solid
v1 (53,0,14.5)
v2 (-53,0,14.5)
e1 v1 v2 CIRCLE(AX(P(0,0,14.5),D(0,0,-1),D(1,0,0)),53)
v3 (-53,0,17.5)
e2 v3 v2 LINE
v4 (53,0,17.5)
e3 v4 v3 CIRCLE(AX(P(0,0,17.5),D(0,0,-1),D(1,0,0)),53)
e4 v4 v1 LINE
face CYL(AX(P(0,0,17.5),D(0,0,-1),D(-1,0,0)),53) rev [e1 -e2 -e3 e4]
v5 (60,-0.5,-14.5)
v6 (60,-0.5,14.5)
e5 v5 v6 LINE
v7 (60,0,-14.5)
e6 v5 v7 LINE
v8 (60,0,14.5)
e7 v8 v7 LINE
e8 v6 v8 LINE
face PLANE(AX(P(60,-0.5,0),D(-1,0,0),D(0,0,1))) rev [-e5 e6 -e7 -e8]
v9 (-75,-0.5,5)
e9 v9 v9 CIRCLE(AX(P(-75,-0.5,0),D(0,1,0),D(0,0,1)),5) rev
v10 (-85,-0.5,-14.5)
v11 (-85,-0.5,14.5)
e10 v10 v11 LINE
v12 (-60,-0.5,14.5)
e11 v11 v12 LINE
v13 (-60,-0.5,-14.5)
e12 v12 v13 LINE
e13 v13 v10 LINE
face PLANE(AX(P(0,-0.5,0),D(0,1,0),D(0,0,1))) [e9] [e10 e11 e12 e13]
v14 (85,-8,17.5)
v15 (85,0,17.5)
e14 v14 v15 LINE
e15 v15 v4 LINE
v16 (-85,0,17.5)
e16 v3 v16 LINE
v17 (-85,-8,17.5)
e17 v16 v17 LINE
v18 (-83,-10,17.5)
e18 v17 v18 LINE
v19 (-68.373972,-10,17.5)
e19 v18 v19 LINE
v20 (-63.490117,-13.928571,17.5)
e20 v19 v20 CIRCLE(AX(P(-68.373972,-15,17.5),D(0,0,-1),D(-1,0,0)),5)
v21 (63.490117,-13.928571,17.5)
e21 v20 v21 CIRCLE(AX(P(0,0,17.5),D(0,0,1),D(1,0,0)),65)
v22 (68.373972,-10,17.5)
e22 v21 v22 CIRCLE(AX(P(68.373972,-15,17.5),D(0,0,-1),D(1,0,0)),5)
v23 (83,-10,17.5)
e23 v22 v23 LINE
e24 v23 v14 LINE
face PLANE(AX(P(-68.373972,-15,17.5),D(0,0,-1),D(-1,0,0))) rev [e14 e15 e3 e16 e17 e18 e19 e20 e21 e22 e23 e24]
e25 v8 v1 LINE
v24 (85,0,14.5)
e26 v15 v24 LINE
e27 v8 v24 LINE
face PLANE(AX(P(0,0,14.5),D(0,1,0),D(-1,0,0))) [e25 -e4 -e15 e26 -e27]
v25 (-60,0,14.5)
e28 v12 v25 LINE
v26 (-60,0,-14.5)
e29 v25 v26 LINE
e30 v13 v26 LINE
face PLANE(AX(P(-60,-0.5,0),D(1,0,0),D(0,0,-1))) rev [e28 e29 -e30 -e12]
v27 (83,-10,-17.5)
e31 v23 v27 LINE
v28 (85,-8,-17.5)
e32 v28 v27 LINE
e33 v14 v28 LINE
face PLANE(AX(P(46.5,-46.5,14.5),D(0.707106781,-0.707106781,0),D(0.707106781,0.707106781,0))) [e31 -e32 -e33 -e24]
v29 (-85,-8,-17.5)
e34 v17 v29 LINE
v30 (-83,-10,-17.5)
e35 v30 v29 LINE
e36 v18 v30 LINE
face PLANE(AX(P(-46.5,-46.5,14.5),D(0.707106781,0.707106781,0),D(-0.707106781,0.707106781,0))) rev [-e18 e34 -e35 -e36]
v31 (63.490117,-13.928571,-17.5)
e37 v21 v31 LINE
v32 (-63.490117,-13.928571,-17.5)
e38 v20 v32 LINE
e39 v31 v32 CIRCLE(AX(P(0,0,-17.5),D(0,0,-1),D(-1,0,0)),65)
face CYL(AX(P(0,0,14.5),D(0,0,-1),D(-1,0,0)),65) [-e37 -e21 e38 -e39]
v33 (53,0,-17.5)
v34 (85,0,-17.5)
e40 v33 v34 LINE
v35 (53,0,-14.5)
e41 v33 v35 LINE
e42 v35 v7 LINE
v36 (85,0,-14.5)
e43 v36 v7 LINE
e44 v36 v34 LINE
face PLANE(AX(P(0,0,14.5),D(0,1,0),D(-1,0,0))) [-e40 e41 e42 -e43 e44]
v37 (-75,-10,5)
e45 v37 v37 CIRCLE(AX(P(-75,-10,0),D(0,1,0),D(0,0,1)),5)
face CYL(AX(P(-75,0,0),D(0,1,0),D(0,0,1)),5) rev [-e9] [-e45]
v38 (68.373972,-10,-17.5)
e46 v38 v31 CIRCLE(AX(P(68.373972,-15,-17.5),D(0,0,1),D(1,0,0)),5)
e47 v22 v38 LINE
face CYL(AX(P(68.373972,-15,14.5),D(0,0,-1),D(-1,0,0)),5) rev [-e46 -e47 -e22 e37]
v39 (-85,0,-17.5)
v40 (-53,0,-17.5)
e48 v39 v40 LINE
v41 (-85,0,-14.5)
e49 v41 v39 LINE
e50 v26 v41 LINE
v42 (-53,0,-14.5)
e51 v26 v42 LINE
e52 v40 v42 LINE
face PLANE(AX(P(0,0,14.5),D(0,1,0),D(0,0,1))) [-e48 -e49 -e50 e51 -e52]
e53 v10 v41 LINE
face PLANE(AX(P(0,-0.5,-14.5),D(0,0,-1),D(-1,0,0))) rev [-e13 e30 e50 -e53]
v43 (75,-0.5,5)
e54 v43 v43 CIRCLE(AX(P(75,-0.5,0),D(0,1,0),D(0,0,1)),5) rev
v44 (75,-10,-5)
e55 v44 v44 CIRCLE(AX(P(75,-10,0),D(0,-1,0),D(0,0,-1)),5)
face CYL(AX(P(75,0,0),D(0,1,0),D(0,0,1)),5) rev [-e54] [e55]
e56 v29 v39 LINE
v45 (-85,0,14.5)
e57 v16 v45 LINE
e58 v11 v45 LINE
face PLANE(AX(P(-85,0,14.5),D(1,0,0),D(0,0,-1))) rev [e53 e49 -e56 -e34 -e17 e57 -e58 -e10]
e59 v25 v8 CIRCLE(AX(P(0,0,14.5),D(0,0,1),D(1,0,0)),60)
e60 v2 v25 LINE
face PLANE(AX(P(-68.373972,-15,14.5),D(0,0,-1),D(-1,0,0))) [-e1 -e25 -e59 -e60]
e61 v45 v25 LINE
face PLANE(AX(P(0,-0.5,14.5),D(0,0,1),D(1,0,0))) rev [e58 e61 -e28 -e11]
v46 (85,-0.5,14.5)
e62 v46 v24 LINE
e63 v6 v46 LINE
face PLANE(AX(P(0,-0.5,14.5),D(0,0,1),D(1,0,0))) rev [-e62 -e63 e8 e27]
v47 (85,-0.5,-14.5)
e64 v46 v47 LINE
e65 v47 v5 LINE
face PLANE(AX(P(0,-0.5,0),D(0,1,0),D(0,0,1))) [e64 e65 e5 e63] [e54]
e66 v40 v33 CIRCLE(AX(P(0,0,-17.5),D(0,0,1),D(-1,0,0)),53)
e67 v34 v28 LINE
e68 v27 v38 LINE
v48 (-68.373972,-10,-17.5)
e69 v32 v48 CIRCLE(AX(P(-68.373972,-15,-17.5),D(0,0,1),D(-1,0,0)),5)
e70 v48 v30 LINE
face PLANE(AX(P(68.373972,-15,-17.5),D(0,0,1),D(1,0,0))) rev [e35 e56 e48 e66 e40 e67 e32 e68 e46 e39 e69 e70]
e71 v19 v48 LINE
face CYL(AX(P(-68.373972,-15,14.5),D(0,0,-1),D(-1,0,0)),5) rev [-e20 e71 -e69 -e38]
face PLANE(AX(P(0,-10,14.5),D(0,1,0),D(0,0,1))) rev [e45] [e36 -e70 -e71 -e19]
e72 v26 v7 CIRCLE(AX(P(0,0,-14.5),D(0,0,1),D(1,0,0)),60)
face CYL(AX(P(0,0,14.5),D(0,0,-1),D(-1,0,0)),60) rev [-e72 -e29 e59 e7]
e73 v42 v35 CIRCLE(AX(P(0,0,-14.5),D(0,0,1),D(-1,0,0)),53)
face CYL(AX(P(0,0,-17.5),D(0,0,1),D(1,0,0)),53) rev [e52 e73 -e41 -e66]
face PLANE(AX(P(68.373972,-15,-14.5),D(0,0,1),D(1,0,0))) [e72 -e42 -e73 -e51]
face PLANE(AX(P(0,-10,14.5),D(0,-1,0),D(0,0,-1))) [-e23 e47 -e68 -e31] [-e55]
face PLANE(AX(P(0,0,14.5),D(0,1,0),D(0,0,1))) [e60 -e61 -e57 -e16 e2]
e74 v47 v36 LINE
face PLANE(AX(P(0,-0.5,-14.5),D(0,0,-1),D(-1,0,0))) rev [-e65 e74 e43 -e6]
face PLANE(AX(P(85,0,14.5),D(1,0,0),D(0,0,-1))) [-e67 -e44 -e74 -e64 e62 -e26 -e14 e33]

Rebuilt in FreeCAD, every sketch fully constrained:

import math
import FreeCAD as App
import Part
import Sketcher
from FreeCAD import Vector


def add_polygon(sketch, points):
    """Adds a closed chain of lines whose ends are joined by coincident constraints."""
    first, n = sketch.GeometryCount, len(points)
    for a, b in zip(points, points[1:] + points[:1]):
        sketch.addGeometry(Part.LineSegment(App.Vector(*a, 0), App.Vector(*b, 0)), False)
    for i in range(n):
        sketch.addConstraint(Sketcher.Constraint("Coincident", first + i, 2, first + (i + 1) % n, 1))

doc = App.newDocument("Part")
body = doc.addObject("PartDesign::Body", "Body")

# Sketch on XY plane
sketch1 = doc.addObject("Sketcher::SketchObject", "Sketch")
body.addObject(sketch1)
sketch1.AttachmentSupport = (doc.XY_Plane, [""])
sketch1.MapMode = "FlatFace"
sketch1.addGeometry(Part.LineSegment(Vector(-83, -10, 0), Vector(-68.4, -10, 0)), False)
sketch1.addGeometry(Part.ArcOfCircle(Part.Circle(Vector(-68.4, -15, 0), Vector(0, 0, 1), 5), math.radians(12), math.radians(90)), False)
sketch1.addGeometry(Part.ArcOfCircle(Part.Circle(Vector(0, 0, 0), Vector(0, 0, 1), 65), math.radians(-168), math.radians(-12)), False)
sketch1.addGeometry(Part.ArcOfCircle(Part.Circle(Vector(68.4, -15, 0), Vector(0, 0, 1), 5), math.radians(90), math.radians(168)), False)
sketch1.addGeometry(Part.LineSegment(Vector(68.4, -10, 0), Vector(83, -10, 0)), False)
sketch1.addGeometry(Part.LineSegment(Vector(83, -10, 0), Vector(85, -8, 0)), False)
sketch1.addGeometry(Part.LineSegment(Vector(85, -8, 0), Vector(85, 0, 0)), False)
sketch1.addGeometry(Part.LineSegment(Vector(85, 0, 0), Vector(60, 0, 0)), False)
sketch1.addGeometry(Part.ArcOfCircle(Part.Circle(Vector(0, 0, 0), Vector(0, 0, 1), 60), math.radians(180), math.radians(360)), False)
sketch1.addGeometry(Part.LineSegment(Vector(-60, 0, 0), Vector(-85, 0, 0)), False)
sketch1.addGeometry(Part.LineSegment(Vector(-85, 0, 0), Vector(-85, -8, 0)), False)
sketch1.addGeometry(Part.LineSegment(Vector(-85, -8, 0), Vector(-83, -10, 0)), False)
sketch1.addConstraint(Sketcher.Constraint("Tangent", 0, 2, 1, 2))
sketch1.addConstraint(Sketcher.Constraint("Tangent", 1, 1, 2, 1))
sketch1.addConstraint(Sketcher.Constraint("Tangent", 2, 2, 3, 2))
sketch1.addConstraint(Sketcher.Constraint("Tangent", 3, 1, 4, 1))
sketch1.addConstraint(Sketcher.Constraint("Coincident", 4, 2, 5, 1))
sketch1.addConstraint(Sketcher.Constraint("Coincident", 5, 2, 6, 1))
sketch1.addConstraint(Sketcher.Constraint("Coincident", 6, 2, 7, 1))
sketch1.addConstraint(Sketcher.Constraint("Coincident", 7, 2, 8, 2))
sketch1.addConstraint(Sketcher.Constraint("Coincident", 8, 1, 9, 1))
sketch1.addConstraint(Sketcher.Constraint("Coincident", 9, 2, 10, 1))
sketch1.addConstraint(Sketcher.Constraint("Coincident", 10, 2, 11, 1))
sketch1.addConstraint(Sketcher.Constraint("Coincident", 11, 2, 0, 1))
sketch1.addConstraint(Sketcher.Constraint("Horizontal", 0))
sketch1.addConstraint(Sketcher.Constraint("Horizontal", 4))
sketch1.addConstraint(Sketcher.Constraint("Vertical", 6))
sketch1.addConstraint(Sketcher.Constraint("Horizontal", 7))
sketch1.addConstraint(Sketcher.Constraint("Horizontal", 9))
sketch1.addConstraint(Sketcher.Constraint("Vertical", 10))
sketch1.addConstraint(Sketcher.Constraint("Coincident", 2, 3, -1, 1))
sketch1.addConstraint(Sketcher.Constraint("Coincident", 8, 3, -1, 1))
sketch1.addConstraint(Sketcher.Constraint("Equal", 1, 3))
sketch1.addConstraint(Sketcher.Constraint("Symmetric", 6, 2, 9, 2, -1, 1))
sketch1.addConstraint(Sketcher.Constraint("Symmetric", 4, 2, 11, 2, -2))
sketch1.addConstraint(Sketcher.Constraint("PointOnObject", 6, 2, -1))
sketch1.addConstraint(Sketcher.Constraint("Perpendicular", 5, 11))
sketch1.addConstraint(Sketcher.Constraint("Horizontal", 5, 2, 10, 2))
sketch1.addConstraint(Sketcher.Constraint("Radius", 1, 5.0))
sketch1.addConstraint(Sketcher.Constraint("Radius", 2, 65.0))
sketch1.addConstraint(Sketcher.Constraint("Radius", 8, 60.0))
sketch1.addConstraint(Sketcher.Constraint("DistanceX", 7, 2, 7, 1, 25.0))
sketch1.addConstraint(Sketcher.Constraint("DistanceY", 6, 1, 6, 2, 8.0))
sketch1.addConstraint(Sketcher.Constraint("DistanceY", 1, 3, -1, 1, 15.0))
pad1 = doc.addObject("PartDesign::Pad", "Pad")
body.addObject(pad1)
pad1.Profile = sketch1
pad1.Length = 29
pad1.Midplane = True

# Sketch on XY plane
sketch2 = doc.addObject("Sketcher::SketchObject", "Sketch001")
body.addObject(sketch2)
sketch2.AttachmentSupport = (doc.XY_Plane, [""])
sketch2.MapMode = "FlatFace"
sketch2.AttachmentOffset = App.Placement(Vector(0, 0, 17.5), App.Rotation())
sketch2.addGeometry(Part.ArcOfCircle(Part.Circle(Vector(0, 0, 0), Vector(0, 0, 1), 53), math.radians(180), math.radians(360)), False)
sketch2.addGeometry(Part.LineSegment(Vector(-53, 0, 0), Vector(-85, 0, 0)), False)
sketch2.addGeometry(Part.LineSegment(Vector(-85, 0, 0), Vector(-85, -8, 0)), False)
sketch2.addGeometry(Part.LineSegment(Vector(-85, -8, 0), Vector(-83, -10, 0)), False)
sketch2.addGeometry(Part.LineSegment(Vector(-83, -10, 0), Vector(-68.4, -10, 0)), False)
sketch2.addGeometry(Part.ArcOfCircle(Part.Circle(Vector(-68.4, -15, 0), Vector(0, 0, 1), 5), math.radians(12), math.radians(90)), False)
sketch2.addGeometry(Part.ArcOfCircle(Part.Circle(Vector(0, 0, 0), Vector(0, 0, 1), 65), math.radians(-168), math.radians(-12)), False)
sketch2.addGeometry(Part.ArcOfCircle(Part.Circle(Vector(68.4, -15, 0), Vector(0, 0, 1), 5), math.radians(90), math.radians(168)), False)
sketch2.addGeometry(Part.LineSegment(Vector(68.4, -10, 0), Vector(83, -10, 0)), False)
sketch2.addGeometry(Part.LineSegment(Vector(83, -10, 0), Vector(85, -8, 0)), False)
sketch2.addGeometry(Part.LineSegment(Vector(85, -8, 0), Vector(85, 0, 0)), False)
sketch2.addGeometry(Part.LineSegment(Vector(85, 0, 0), Vector(53, 0, 0)), False)
sketch2.addConstraint(Sketcher.Constraint("Coincident", 0, 1, 1, 1))
sketch2.addConstraint(Sketcher.Constraint("Coincident", 1, 2, 2, 1))
sketch2.addConstraint(Sketcher.Constraint("Coincident", 2, 2, 3, 1))
sketch2.addConstraint(Sketcher.Constraint("Coincident", 3, 2, 4, 1))
sketch2.addConstraint(Sketcher.Constraint("Tangent", 4, 2, 5, 2))
sketch2.addConstraint(Sketcher.Constraint("Tangent", 5, 1, 6, 1))
sketch2.addConstraint(Sketcher.Constraint("Tangent", 6, 2, 7, 2))
sketch2.addConstraint(Sketcher.Constraint("Tangent", 7, 1, 8, 1))
sketch2.addConstraint(Sketcher.Constraint("Coincident", 8, 2, 9, 1))
sketch2.addConstraint(Sketcher.Constraint("Coincident", 9, 2, 10, 1))
sketch2.addConstraint(Sketcher.Constraint("Coincident", 10, 2, 11, 1))
sketch2.addConstraint(Sketcher.Constraint("Coincident", 11, 2, 0, 2))
sketch2.addConstraint(Sketcher.Constraint("Horizontal", 1))
sketch2.addConstraint(Sketcher.Constraint("Vertical", 2))
sketch2.addConstraint(Sketcher.Constraint("Horizontal", 4))
sketch2.addConstraint(Sketcher.Constraint("Horizontal", 8))
sketch2.addConstraint(Sketcher.Constraint("Vertical", 10))
sketch2.addConstraint(Sketcher.Constraint("Horizontal", 11))
sketch2.addConstraint(Sketcher.Constraint("Coincident", 0, 3, -1, 1))
sketch2.addConstraint(Sketcher.Constraint("Coincident", 6, 3, -1, 1))
sketch2.addConstraint(Sketcher.Constraint("Equal", 5, 7))
sketch2.addConstraint(Sketcher.Constraint("Symmetric", 1, 2, 10, 2, -1, 1))
sketch2.addConstraint(Sketcher.Constraint("Symmetric", 3, 2, 8, 2, -2))
sketch2.addConstraint(Sketcher.Constraint("PointOnObject", 0, 1, -1))
sketch2.addConstraint(Sketcher.Constraint("Perpendicular", 3, 9))
sketch2.addConstraint(Sketcher.Constraint("Horizontal", 2, 2, 9, 2))
sketch2.addConstraint(Sketcher.Constraint("Radius", 0, 53.0))
sketch2.addConstraint(Sketcher.Constraint("Radius", 5, 5.0))
sketch2.addConstraint(Sketcher.Constraint("Radius", 6, 65.0))
sketch2.addConstraint(Sketcher.Constraint("DistanceX", 1, 2, 1, 1, 32.0))
sketch2.addConstraint(Sketcher.Constraint("DistanceY", 2, 2, 2, 1, 8.0))
sketch2.addConstraint(Sketcher.Constraint("DistanceY", 5, 3, -1, 1, 15.0))
pad2 = doc.addObject("PartDesign::Pad", "Pad001")
body.addObject(pad2)
pad2.Profile = sketch2
pad2.Length = 3
pad2.Reversed = True

# Sketch on XY plane
sketch3 = doc.addObject("Sketcher::SketchObject", "Sketch002")
body.addObject(sketch3)
sketch3.AttachmentSupport = (doc.XY_Plane, [""])
sketch3.MapMode = "FlatFace"
sketch3.AttachmentOffset = App.Placement(Vector(0, 0, -14.5), App.Rotation())
sketch3.addGeometry(Part.ArcOfCircle(Part.Circle(Vector(0, 0, 0), Vector(0, 0, 1), 53), math.radians(180), math.radians(360)), False)
sketch3.addGeometry(Part.LineSegment(Vector(53, 0, 0), Vector(85, 0, 0)), False)
sketch3.addGeometry(Part.LineSegment(Vector(85, 0, 0), Vector(85, -8, 0)), False)
sketch3.addGeometry(Part.LineSegment(Vector(85, -8, 0), Vector(83, -10, 0)), False)
sketch3.addGeometry(Part.LineSegment(Vector(83, -10, 0), Vector(68.4, -10, 0)), False)
sketch3.addGeometry(Part.ArcOfCircle(Part.Circle(Vector(68.4, -15, 0), Vector(0, 0, 1), 5), math.radians(90), math.radians(168)), False)
sketch3.addGeometry(Part.ArcOfCircle(Part.Circle(Vector(0, 0, 0), Vector(0, 0, 1), 65), math.radians(-168), math.radians(-12)), False)
sketch3.addGeometry(Part.ArcOfCircle(Part.Circle(Vector(-68.4, -15, 0), Vector(0, 0, 1), 5), math.radians(12), math.radians(90)), False)
sketch3.addGeometry(Part.LineSegment(Vector(-68.4, -10, 0), Vector(-83, -10, 0)), False)
sketch3.addGeometry(Part.LineSegment(Vector(-83, -10, 0), Vector(-85, -8, 0)), False)
sketch3.addGeometry(Part.LineSegment(Vector(-85, -8, 0), Vector(-85, 0, 0)), False)
sketch3.addGeometry(Part.LineSegment(Vector(-85, 0, 0), Vector(-53, 0, 0)), False)
sketch3.addConstraint(Sketcher.Constraint("Coincident", 0, 2, 1, 1))
sketch3.addConstraint(Sketcher.Constraint("Coincident", 1, 2, 2, 1))
sketch3.addConstraint(Sketcher.Constraint("Coincident", 2, 2, 3, 1))
sketch3.addConstraint(Sketcher.Constraint("Coincident", 3, 2, 4, 1))
sketch3.addConstraint(Sketcher.Constraint("Tangent", 4, 2, 5, 1))
sketch3.addConstraint(Sketcher.Constraint("Tangent", 5, 2, 6, 2))
sketch3.addConstraint(Sketcher.Constraint("Tangent", 6, 1, 7, 1))
sketch3.addConstraint(Sketcher.Constraint("Tangent", 7, 2, 8, 1))
sketch3.addConstraint(Sketcher.Constraint("Coincident", 8, 2, 9, 1))
sketch3.addConstraint(Sketcher.Constraint("Coincident", 9, 2, 10, 1))
sketch3.addConstraint(Sketcher.Constraint("Coincident", 10, 2, 11, 1))
sketch3.addConstraint(Sketcher.Constraint("Coincident", 11, 2, 0, 1))
sketch3.addConstraint(Sketcher.Constraint("Horizontal", 1))
sketch3.addConstraint(Sketcher.Constraint("Vertical", 2))
sketch3.addConstraint(Sketcher.Constraint("Horizontal", 4))
sketch3.addConstraint(Sketcher.Constraint("Horizontal", 8))
sketch3.addConstraint(Sketcher.Constraint("Vertical", 10))
sketch3.addConstraint(Sketcher.Constraint("Horizontal", 11))
sketch3.addConstraint(Sketcher.Constraint("Coincident", 0, 3, -1, 1))
sketch3.addConstraint(Sketcher.Constraint("Coincident", 6, 3, -1, 1))
sketch3.addConstraint(Sketcher.Constraint("Equal", 5, 7))
sketch3.addConstraint(Sketcher.Constraint("Symmetric", 1, 2, 10, 2, -1, 1))
sketch3.addConstraint(Sketcher.Constraint("Symmetric", 3, 2, 8, 2, -2))
sketch3.addConstraint(Sketcher.Constraint("PointOnObject", 0, 2, -1))
sketch3.addConstraint(Sketcher.Constraint("Perpendicular", 3, 9))
sketch3.addConstraint(Sketcher.Constraint("Horizontal", 2, 2, 9, 2))
sketch3.addConstraint(Sketcher.Constraint("Radius", 0, 53.0))
sketch3.addConstraint(Sketcher.Constraint("Radius", 5, 5.0))
sketch3.addConstraint(Sketcher.Constraint("Radius", 6, 65.0))
sketch3.addConstraint(Sketcher.Constraint("DistanceX", 1, 1, 1, 2, 32.0))
sketch3.addConstraint(Sketcher.Constraint("DistanceY", 2, 2, 2, 1, 8.0))
sketch3.addConstraint(Sketcher.Constraint("DistanceY", 5, 3, -1, 1, 15.0))
pad3 = doc.addObject("PartDesign::Pad", "Pad002")
body.addObject(pad3)
pad3.Profile = sketch3
pad3.Length = 3
pad3.Reversed = True

# Sketch on XZ plane
sketch4 = doc.addObject("Sketcher::SketchObject", "Sketch003")
body.addObject(sketch4)
sketch4.AttachmentSupport = (doc.XZ_Plane, [""])
sketch4.MapMode = "FlatFace"
sketch4.addGeometry(Part.Circle(Vector(75, 0, 0), Vector(0, 0, 1), 5), False)
sketch4.addGeometry(Part.Circle(Vector(-75, 0, 0), Vector(0, 0, 1), 5), False)
sketch4.addConstraint(Sketcher.Constraint("Equal", 0, 1))
sketch4.addConstraint(Sketcher.Constraint("Symmetric", 0, 3, 1, 3, -1, 1))
sketch4.addConstraint(Sketcher.Constraint("PointOnObject", 0, 3, -1))
sketch4.addConstraint(Sketcher.Constraint("Diameter", 0, 10.0))
sketch4.addConstraint(Sketcher.Constraint("DistanceX", -1, 1, 0, 3, 75.0))
doc.recompute()
hole = doc.addObject("PartDesign::Hole", "Hole")
body.addObject(hole)
hole.Profile = sketch4
hole.ThreadType = "None"
hole.Diameter = 10
hole.DepthType = "ThroughAll"
hole.Reversed = True

# Sketch on XZ plane
sketch5 = doc.addObject("Sketcher::SketchObject", "Sketch004")
body.addObject(sketch5)
sketch5.AttachmentSupport = (doc.XZ_Plane, [""])
sketch5.MapMode = "FlatFace"
sketch5.AttachmentOffset = App.Placement(Vector(0, 0, 0.5), App.Rotation())
add_polygon(sketch5, [(-85, -14), (-85, 14), (-60, 14), (-60, -14)])  # lines 0-3
sketch5.addGeometry(Part.Circle(Vector(-75, 0, 0), Vector(0, 0, 1), 5), False)  # 4
add_polygon(sketch5, [(60, -14), (60, 14), (85, 14), (85, -14)])  # lines 5-8
sketch5.addConstraint(Sketcher.Constraint("Vertical", 0))
sketch5.addConstraint(Sketcher.Constraint("Horizontal", 1))
sketch5.addConstraint(Sketcher.Constraint("Vertical", 2))
sketch5.addConstraint(Sketcher.Constraint("Horizontal", 3))
sketch5.addConstraint(Sketcher.Constraint("Vertical", 5))
sketch5.addConstraint(Sketcher.Constraint("Horizontal", 6))
sketch5.addConstraint(Sketcher.Constraint("Vertical", 7))
sketch5.addConstraint(Sketcher.Constraint("Horizontal", 8))
sketch5.addConstraint(Sketcher.Constraint("Symmetric", 2, 2, 5, 2, -1, 1))
sketch5.addConstraint(Sketcher.Constraint("Symmetric", 0, 2, 7, 2, -1, 1))
sketch5.addConstraint(Sketcher.Constraint("PointOnObject", 4, 3, -1))
sketch5.addConstraint(Sketcher.Constraint("Horizontal", 1, 2, 5, 2))
sketch5.addConstraint(Sketcher.Constraint("Diameter", 4, 10.0))
sketch5.addConstraint(Sketcher.Constraint("DistanceX", 1, 1, 1, 2, 25.0))
sketch5.addConstraint(Sketcher.Constraint("DistanceY", 0, 1, 0, 2, 29.0))
sketch5.addConstraint(Sketcher.Constraint("DistanceX", 4, 3, -1, 1, 75.0))
sketch5.addConstraint(Sketcher.Constraint("DistanceX", 0, 2, -1, 1, 85.0))
pocket1 = doc.addObject("PartDesign::Pocket", "Pocket")
body.addObject(pocket1)
pocket1.Profile = sketch5
pocket1.Length = 0.5

doc.recompute()
